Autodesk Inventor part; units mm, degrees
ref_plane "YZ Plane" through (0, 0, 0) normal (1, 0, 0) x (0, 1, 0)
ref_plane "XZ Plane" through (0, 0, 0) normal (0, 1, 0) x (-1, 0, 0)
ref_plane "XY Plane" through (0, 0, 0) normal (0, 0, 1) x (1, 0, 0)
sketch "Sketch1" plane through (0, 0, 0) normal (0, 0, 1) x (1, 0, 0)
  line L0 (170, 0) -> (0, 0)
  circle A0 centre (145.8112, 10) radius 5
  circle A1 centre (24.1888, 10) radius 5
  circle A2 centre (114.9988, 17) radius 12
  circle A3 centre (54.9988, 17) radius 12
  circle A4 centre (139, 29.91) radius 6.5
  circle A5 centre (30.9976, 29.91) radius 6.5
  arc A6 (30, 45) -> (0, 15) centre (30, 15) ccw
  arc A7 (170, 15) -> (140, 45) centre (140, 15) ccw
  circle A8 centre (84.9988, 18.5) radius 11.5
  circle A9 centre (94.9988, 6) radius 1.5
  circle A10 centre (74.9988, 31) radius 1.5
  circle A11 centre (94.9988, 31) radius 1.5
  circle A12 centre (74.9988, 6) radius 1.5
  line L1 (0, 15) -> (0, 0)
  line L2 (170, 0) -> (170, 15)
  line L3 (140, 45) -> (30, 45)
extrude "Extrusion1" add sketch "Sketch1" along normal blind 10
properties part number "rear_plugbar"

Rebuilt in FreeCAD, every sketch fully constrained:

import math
import FreeCAD as App
import Part
import Sketcher

V = App.Vector

doc = App.newDocument("Part")
body = doc.addObject("PartDesign::Body", "Body")

# Sketch on XY plane
sketch1 = body.newObject("Sketcher::SketchObject", "Sketch")
sketch1.AttachmentSupport = (doc.getObject("XY_Plane"), [""])
sketch1.MapMode = "FlatFace"
sketch1.addGeometry([
    Part.LineSegment(V(0, 0, 0), V(170, 0, 0)),  # 0
    Part.LineSegment(V(170, 0, 0), V(170, 15, 0)),  # 1
    Part.ArcOfCircle(Part.Circle(V(140, 15, 0), V(0, 0, 1), 30), math.radians(0), math.radians(90)),  # 2
    Part.LineSegment(V(140, 45, 0), V(30, 45, 0)),  # 3
    Part.ArcOfCircle(Part.Circle(V(30, 15, 0), V(0, 0, 1), 30), math.radians(90), math.radians(180)),  # 4
    Part.LineSegment(V(0, 15, 0), V(0, 0, 0)),  # 5
    Part.Circle(V(24.1888, 10, 0), V(0, 0, 1), 5),  # 6
    Part.Circle(V(74.9988, 6, 0), V(0, 0, 1), 1.5),  # 7
    Part.Circle(V(54.9988, 17, 0), V(0, 0, 1), 12),  # 8
    Part.Circle(V(84.9988, 18.5, 0), V(0, 0, 1), 11.5),  # 9
    Part.Circle(V(94.9988, 6, 0), V(0, 0, 1), 1.5),  # 10
    Part.Circle(V(145.8112, 10, 0), V(0, 0, 1), 5),  # 11
    Part.Circle(V(114.9988, 17, 0), V(0, 0, 1), 12),  # 12
    Part.Circle(V(30.9976, 29.91, 0), V(0, 0, 1), 6.5),  # 13
    Part.Circle(V(74.9988, 31, 0), V(0, 0, 1), 1.5),  # 14
    Part.Circle(V(94.9988, 31, 0), V(0, 0, 1), 1.5),  # 15
    Part.Circle(V(139, 29.91, 0), V(0, 0, 1), 6.5),  # 16
], False)
sketch1.addConstraint([
    Sketcher.Constraint("Coincident", 0, 2, 1, 1),
    Sketcher.Constraint("Tangent", 1, 2, 2, 1),
    Sketcher.Constraint("Tangent", 2, 2, 3, 1),
    Sketcher.Constraint("Tangent", 3, 2, 4, 1),
    Sketcher.Constraint("Tangent", 4, 2, 5, 1),
    Sketcher.Constraint("Coincident", 5, 2, 0, 1),
    Sketcher.Constraint("Horizontal", 0),
    Sketcher.Constraint("Vertical", 1),
    Sketcher.Constraint("Horizontal", 3),
    Sketcher.Constraint("Vertical", 5),
    Sketcher.Constraint("Coincident", 5, 2, -1, 1),
    Sketcher.Constraint("Equal", 2, 4),
    Sketcher.Constraint("Equal", 7, 10),
    Sketcher.Constraint("Equal", 6, 11),
    Sketcher.Constraint("Equal", 8, 12),
    Sketcher.Constraint("Equal", 10, 14),
    Sketcher.Constraint("Equal", 14, 15),
    Sketcher.Constraint("Equal", 13, 16),
    Sketcher.Constraint("Horizontal", 7, 3, 10, 3),
    Sketcher.Constraint("Horizontal", 6, 3, 11, 3),
    Sketcher.Constraint("Horizontal", 8, 3, 12, 3),
    Sketcher.Constraint("Horizontal", 14, 3, 15, 3),
    Sketcher.Constraint("Horizontal", 13, 3, 16, 3),
    Sketcher.Constraint("Vertical", 7, 3, 14, 3),
    Sketcher.Constraint("Vertical", 10, 3, 15, 3),
    Sketcher.Constraint("Diameter", 6, 10.0),
    Sketcher.Constraint("Diameter", 7, 3.0),
    Sketcher.Constraint("Diameter", 8, 24.0),
    Sketcher.Constraint("Diameter", 9, 23.0),
    Sketcher.Constraint("Diameter", 13, 13.0),
    Sketcher.Constraint("Radius", 2, 30.0),
    Sketcher.Constraint("DistanceX", 0, 1, 0, 2, 170.0),
    Sketcher.Constraint("DistanceY", 1, 1, 1, 2, 15.0),
    Sketcher.Constraint("DistanceY", -1, 1, 6, 3, 10.0),
    Sketcher.Constraint("DistanceY", -1, 1, 7, 3, 6.0),
    Sketcher.Constraint("DistanceY", -1, 1, 8, 3, 17.0),
    Sketcher.Constraint("DistanceY", -1, 1, 14, 3, 31.0),
    Sketcher.Constraint("DistanceX", -1, 1, 16, 3, 139.0),
    Sketcher.Constraint("DistanceX", 8, 3, 7, 3, 20.0),
    Sketcher.Constraint("DistanceX", 7, 3, 9, 3, 10.0),
    Sketcher.Constraint("DistanceX", 9, 3, 10, 3, 10.0),
    Sketcher.Constraint("DistanceX", 10, 3, 12, 3, 20.0),
    Sketcher.Constraint("DistanceY", -1, 1, 9, 3, 18.5),
    Sketcher.Constraint("DistanceY", -1, 1, 13, 3, 29.91),
    Sketcher.Constraint("DistanceX", 6, 3, 7, 3, 50.81),
    Sketcher.Constraint("DistanceX", -1, 1, 6, 3, 24.1888),
    Sketcher.Constraint("DistanceX", -1, 1, 11, 3, 145.8112),
    Sketcher.Constraint("DistanceX", -1, 1, 13, 3, 30.9976),
])
pad1 = body.newObject("PartDesign::Pad", "Pad")
pad1.Profile = sketch1
pad1.Length = 10

doc.recompute()
